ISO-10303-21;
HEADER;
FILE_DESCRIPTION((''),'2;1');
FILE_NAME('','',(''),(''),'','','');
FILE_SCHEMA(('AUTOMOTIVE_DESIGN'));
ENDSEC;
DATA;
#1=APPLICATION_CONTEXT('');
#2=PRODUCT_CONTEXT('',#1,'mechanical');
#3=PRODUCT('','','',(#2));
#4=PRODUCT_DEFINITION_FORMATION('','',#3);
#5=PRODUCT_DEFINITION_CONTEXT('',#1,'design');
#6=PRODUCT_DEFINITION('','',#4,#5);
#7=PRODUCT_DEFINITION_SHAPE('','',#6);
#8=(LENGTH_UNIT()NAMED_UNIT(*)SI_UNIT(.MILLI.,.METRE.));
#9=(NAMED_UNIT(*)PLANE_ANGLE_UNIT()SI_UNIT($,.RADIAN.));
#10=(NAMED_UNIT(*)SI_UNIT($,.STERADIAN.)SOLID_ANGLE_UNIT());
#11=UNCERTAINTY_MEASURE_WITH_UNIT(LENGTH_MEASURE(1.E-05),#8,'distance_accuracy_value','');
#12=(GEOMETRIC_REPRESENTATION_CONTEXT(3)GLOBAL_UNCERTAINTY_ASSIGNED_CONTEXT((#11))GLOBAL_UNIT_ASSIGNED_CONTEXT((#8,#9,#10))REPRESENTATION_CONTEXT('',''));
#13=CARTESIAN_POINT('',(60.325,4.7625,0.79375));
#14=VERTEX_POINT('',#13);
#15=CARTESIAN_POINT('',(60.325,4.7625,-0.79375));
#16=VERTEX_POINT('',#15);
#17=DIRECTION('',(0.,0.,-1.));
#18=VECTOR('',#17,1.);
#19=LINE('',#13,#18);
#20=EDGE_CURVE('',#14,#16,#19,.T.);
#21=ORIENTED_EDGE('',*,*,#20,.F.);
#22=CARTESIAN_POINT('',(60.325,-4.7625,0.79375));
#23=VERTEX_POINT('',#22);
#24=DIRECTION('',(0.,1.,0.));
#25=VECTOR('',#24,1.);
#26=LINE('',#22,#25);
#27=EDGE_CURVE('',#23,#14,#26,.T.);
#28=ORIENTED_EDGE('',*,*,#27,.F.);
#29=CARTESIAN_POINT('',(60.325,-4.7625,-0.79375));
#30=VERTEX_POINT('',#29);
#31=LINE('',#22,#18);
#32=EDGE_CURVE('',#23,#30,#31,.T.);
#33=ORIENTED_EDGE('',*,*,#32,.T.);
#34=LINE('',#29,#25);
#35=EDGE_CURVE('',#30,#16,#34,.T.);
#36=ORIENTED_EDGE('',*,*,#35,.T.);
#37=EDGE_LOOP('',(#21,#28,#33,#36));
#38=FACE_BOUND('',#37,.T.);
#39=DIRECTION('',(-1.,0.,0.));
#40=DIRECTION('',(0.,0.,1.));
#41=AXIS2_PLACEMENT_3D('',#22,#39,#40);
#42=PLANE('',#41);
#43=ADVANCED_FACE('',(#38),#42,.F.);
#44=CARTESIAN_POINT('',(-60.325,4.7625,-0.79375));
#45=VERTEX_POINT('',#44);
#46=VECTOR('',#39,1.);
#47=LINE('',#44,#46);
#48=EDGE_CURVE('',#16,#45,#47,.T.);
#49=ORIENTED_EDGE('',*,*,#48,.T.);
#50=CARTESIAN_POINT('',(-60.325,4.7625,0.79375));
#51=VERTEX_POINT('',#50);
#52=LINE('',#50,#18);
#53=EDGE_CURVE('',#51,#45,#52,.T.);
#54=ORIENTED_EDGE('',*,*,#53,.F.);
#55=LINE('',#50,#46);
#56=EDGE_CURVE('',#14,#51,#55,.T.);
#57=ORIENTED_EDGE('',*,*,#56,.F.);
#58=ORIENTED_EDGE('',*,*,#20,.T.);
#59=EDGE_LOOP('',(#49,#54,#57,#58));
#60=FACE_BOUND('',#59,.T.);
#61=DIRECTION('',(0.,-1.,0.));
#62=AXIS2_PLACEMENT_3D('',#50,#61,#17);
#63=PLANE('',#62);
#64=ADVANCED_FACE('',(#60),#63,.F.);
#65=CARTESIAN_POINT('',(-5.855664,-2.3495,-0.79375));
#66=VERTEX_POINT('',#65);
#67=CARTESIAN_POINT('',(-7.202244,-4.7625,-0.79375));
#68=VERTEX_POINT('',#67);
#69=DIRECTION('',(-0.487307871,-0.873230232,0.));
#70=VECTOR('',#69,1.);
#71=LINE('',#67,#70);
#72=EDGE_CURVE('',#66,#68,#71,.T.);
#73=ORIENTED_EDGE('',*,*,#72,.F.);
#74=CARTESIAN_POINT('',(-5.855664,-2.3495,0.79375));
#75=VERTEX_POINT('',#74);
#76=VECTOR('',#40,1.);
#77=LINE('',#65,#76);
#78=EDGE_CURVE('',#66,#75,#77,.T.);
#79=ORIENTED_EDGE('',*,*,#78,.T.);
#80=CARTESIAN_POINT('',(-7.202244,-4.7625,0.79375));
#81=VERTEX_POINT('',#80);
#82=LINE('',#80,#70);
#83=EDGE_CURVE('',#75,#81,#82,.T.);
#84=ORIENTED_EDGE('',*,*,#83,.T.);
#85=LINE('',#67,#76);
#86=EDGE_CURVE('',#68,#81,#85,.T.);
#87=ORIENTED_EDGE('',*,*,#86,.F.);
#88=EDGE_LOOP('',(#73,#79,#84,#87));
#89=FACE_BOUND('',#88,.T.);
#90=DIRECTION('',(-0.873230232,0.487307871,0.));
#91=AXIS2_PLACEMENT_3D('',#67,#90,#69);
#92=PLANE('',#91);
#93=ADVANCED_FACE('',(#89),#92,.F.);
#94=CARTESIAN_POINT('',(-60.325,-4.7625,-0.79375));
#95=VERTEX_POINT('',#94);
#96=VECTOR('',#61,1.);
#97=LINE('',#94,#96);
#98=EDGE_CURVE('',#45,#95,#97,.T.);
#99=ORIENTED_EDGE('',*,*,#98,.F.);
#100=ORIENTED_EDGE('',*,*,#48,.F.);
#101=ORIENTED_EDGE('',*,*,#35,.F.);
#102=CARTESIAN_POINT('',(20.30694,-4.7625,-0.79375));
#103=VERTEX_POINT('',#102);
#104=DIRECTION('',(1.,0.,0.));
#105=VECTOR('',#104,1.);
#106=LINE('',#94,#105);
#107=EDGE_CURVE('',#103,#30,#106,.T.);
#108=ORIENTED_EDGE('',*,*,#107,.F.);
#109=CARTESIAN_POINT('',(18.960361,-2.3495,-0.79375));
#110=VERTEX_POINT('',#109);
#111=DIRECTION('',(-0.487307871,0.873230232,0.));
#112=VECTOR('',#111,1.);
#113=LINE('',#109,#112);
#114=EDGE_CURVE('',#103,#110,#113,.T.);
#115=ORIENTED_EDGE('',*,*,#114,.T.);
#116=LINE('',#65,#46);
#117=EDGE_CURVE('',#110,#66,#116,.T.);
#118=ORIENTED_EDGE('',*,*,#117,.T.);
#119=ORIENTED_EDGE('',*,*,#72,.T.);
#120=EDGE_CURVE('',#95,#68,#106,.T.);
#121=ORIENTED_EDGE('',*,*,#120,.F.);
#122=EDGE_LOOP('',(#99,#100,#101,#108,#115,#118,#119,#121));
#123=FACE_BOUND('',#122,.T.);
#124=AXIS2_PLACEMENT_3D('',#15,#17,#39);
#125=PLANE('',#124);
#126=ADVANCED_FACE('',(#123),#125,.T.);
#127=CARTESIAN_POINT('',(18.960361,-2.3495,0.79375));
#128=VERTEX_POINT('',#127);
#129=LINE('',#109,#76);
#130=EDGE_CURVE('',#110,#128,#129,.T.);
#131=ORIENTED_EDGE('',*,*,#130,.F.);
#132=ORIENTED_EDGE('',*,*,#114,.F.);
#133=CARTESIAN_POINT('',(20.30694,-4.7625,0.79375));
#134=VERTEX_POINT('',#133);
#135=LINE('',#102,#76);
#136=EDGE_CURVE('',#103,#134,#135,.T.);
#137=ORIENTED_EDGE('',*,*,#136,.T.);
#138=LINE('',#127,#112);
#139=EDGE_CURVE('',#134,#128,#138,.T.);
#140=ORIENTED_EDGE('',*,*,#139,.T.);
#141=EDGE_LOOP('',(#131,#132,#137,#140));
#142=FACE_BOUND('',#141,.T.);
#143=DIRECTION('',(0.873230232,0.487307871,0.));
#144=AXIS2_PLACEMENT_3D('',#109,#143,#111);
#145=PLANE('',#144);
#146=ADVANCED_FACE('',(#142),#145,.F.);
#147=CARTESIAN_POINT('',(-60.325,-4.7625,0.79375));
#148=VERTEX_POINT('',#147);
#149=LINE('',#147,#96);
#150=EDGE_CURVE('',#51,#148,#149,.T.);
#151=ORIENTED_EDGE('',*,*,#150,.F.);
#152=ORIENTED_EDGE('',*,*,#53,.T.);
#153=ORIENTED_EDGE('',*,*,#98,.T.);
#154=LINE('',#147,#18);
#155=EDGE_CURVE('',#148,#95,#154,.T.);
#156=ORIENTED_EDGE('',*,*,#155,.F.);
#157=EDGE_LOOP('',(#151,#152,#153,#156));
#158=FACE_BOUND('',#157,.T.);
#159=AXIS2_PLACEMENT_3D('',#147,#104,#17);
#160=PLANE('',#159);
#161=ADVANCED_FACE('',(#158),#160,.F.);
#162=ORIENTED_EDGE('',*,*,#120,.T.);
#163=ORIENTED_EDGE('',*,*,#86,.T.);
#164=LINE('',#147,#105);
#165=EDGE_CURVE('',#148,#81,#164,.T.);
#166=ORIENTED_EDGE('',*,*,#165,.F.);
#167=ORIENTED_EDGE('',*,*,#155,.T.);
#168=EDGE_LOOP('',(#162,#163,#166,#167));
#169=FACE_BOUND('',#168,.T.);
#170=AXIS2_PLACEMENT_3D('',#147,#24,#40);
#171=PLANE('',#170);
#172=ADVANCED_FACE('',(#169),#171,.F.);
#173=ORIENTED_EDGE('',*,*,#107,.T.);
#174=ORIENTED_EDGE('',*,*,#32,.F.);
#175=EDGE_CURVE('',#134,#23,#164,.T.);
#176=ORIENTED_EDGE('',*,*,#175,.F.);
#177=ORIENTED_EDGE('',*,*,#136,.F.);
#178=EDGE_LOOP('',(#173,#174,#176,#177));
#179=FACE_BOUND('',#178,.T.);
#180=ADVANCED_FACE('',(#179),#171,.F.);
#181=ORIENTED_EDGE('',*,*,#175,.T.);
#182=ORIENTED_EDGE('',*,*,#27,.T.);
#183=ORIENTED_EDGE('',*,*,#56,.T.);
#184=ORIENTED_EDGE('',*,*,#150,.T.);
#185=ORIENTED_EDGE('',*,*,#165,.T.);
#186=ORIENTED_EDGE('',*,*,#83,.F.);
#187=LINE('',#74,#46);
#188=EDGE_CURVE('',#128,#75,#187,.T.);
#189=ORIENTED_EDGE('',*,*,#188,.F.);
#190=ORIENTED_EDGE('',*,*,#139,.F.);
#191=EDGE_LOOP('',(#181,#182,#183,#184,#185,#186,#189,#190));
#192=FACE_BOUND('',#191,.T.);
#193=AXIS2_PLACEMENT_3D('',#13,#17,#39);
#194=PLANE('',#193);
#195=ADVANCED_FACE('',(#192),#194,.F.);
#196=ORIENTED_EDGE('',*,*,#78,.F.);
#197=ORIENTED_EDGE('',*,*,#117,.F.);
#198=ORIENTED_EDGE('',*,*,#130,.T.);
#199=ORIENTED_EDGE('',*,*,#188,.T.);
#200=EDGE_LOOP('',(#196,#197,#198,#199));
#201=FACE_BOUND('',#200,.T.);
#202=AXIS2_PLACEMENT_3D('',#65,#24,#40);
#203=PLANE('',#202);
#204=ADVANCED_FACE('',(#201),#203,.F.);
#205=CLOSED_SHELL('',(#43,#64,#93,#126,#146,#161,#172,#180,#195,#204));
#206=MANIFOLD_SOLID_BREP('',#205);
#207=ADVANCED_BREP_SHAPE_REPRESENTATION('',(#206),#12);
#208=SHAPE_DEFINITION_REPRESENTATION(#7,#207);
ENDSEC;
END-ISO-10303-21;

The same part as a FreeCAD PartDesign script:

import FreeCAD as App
import Part
import Sketcher
Q = App.Units.Quantity

doc = App.newDocument("Part")
params = doc.addObject("Spreadsheet::Sheet", "Params")
for row, (alias, value) in enumerate([
    ("sketch1_width", "4.75 in"),
    ("sketch1_height", "0.375 in"),
    ("pad1_length", "0.0625 in"),
], start=1):
    params.set(f"A{row}", alias)
    params.set(f"B{row}", "=" + value)
    params.setAlias(f"B{row}", alias)

body = doc.addObject("PartDesign::Body", "Body")

sketch1 = body.newObject("Sketcher::SketchObject", "Sketch")
sketch1.AttachmentSupport = (doc.getObject("XY_Plane"), [""])
sketch1.MapMode = "FlatFace"
sketch1.addGeometry([
    Part.LineSegment(App.Vector(-60, 5, 0), App.Vector(-60, -5, 0)),
    Part.LineSegment(App.Vector(-60, -5, 0), App.Vector(60, -5, 0)),
    Part.LineSegment(App.Vector(60, -5, 0), App.Vector(60, 5, 0)),
    Part.LineSegment(App.Vector(60, 5, 0), App.Vector(-60, 5, 0)),
], False)
sketch1.addConstraint([
    Sketcher.Constraint("Coincident", 0, 2, 1, 1),
    Sketcher.Constraint("Coincident", 1, 2, 2, 1),
    Sketcher.Constraint("Coincident", 2, 2, 3, 1),
    Sketcher.Constraint("Coincident", 3, 2, 0, 1),
    Sketcher.Constraint("Vertical", 0),
    Sketcher.Constraint("Horizontal", 1),
    Sketcher.Constraint("Vertical", 2),
    Sketcher.Constraint("Horizontal", 3),
    Sketcher.Constraint("Symmetric", 0, 2, 2, 2, -1, 1),
    Sketcher.Constraint("DistanceX", 1, 1, 1, 2, Q("4.75 in")),
    Sketcher.Constraint("DistanceY", 0, 2, 0, 1, Q("0.375 in")),
])
sketch1.setExpression("Constraints[9]", "Params.sketch1_width")
sketch1.setExpression("Constraints[10]", "Params.sketch1_height")
pad1 = body.newObject("PartDesign::Pad", "Pad")
pad1.Profile = sketch1
pad1.setExpression("Length", "Params.pad1_length")
pad1.Midplane = True

sketch2 = body.newObject("Sketcher::SketchObject", "Sketch001")
sketch2.AttachmentSupport = (doc.getObject("XY_Plane"), [""])
sketch2.MapMode = "FlatFace"
sketch2.AttachmentOffset = App.Placement(App.Vector(0, 0, 0.03125 * 25.4), App.Rotation())
sketch2.addGeometry([
    Part.LineSegment(App.Vector(-5.9, -2.3, 0), App.Vector(-7.2, -4.8, 0)),
    Part.LineSegment(App.Vector(-7.2, -4.8, 0), App.Vector(20.3, -4.8, 0)),
    Part.LineSegment(App.Vector(20.3, -4.8, 0), App.Vector(19, -2.3, 0)),
    Part.LineSegment(App.Vector(19, -2.3, 0), App.Vector(-5.9, -2.3, 0)),
], False)
sketch2.addConstraint([
    Sketcher.Constraint("Coincident", 0, 2, 1, 1),
    Sketcher.Constraint("Coincident", 1, 2, 2, 1),
    Sketcher.Constraint("Coincident", 2, 2, 3, 1),
    Sketcher.Constraint("Coincident", 3, 2, 0, 1),
    Sketcher.Constraint("Horizontal", 1),
    Sketcher.Constraint("Horizontal", 3),
    Sketcher.Constraint("Equal", 0, 2),
    Sketcher.Constraint("DistanceY", 0, 2, -1, 1, Q("0.1875 in")),
    Sketcher.Constraint("DistanceY", 1, 2, 2, 2, Q("0.095 in")),
    Sketcher.Constraint("DistanceX", 1, 1, 1, 2, 27.509184),
    Sketcher.Constraint("DistanceX", 3, 2, 3, 1, 24.816025),
    Sketcher.Constraint("DistanceX", -1, 1, 1, 2, 20.30694),
])
pocket1 = body.newObject("PartDesign::Pocket", "Pocket")
pocket1.Profile = sketch2
pocket1.Type = "ThroughAll"

doc.recompute()
